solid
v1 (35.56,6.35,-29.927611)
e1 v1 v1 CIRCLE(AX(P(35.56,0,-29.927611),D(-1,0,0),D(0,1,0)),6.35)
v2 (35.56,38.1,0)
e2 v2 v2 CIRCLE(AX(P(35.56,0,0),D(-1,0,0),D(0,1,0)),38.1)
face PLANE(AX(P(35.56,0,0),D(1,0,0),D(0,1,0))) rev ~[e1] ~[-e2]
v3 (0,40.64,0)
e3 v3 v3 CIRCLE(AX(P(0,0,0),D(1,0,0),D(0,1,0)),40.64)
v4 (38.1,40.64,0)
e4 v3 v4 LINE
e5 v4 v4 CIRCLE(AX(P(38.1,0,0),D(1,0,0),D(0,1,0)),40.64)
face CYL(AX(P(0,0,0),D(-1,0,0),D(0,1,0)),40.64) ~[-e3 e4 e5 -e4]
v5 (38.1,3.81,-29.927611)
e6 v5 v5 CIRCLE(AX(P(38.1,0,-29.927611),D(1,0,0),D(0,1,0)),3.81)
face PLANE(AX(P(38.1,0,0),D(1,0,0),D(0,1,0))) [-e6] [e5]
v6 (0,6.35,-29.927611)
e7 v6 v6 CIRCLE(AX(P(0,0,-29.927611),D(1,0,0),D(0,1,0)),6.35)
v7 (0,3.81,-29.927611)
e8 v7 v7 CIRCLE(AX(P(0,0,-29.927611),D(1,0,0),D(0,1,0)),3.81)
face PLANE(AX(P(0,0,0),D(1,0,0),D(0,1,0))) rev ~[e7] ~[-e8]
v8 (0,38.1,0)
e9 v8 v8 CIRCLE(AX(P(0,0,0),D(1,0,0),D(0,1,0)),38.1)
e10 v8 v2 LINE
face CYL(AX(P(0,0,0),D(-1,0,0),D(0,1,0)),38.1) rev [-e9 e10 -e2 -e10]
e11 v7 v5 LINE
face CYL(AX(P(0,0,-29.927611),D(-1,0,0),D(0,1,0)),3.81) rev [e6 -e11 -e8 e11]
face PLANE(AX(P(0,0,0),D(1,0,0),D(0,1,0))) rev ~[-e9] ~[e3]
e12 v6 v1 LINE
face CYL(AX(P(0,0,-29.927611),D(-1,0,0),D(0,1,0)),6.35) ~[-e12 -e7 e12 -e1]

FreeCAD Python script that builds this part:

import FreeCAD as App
import Part
import Sketcher
from FreeCAD import Vector
Q = App.Units.Quantity


def faces_at(feature, points):
    """Names of the faces that lie closest to the given points."""
    faces = feature.Shape.Faces
    near = lambda p: min(range(len(faces)), key=lambda i: faces[i].distToShape(Part.Vertex(*p))[0])
    return sorted({f"Face{near(p) + 1}" for p in points})

doc = App.newDocument("Part")
body = doc.addObject("PartDesign::Body", "Body")

sketch1 = body.newObject("Sketcher::SketchObject", "Sketch")
sketch1.AttachmentSupport = (doc.getObject("YZ_Plane"), [""])
sketch1.MapMode = "FlatFace"
sketch1.addGeometry([
    Part.Circle(Vector(0, 0, 0), Vector(0, 0, 1), 40.6),
    Part.Circle(Vector(0, -29.9, 0), Vector(0, 0, 1), 3.8),
], False)
sketch1.addConstraint([
    Sketcher.Constraint("Coincident", 0, 3, -1, 1),
    Sketcher.Constraint("PointOnObject", 1, 3, -2),
    Sketcher.Constraint("Diameter", 0, Q("3.2 in")),
    Sketcher.Constraint("Diameter", 1, Q("0.3 in")),
    Sketcher.Constraint("DistanceY", 1, 3, -1, 1, 29.927611),
])
pad1 = body.newObject("PartDesign::Pad", "Pad")
pad1.Profile = sketch1
pad1.Length = Q("1.5 in")
doc.recompute()

thickness = body.newObject("PartDesign::Thickness", "Thickness")
thickness.Base = (pad1, faces_at(pad1, [(0, 0, 0)]))
thickness.Value = Q("0.1 in")
thickness.Reversed = True
thickness.Join = "Arc"

doc.recompute()
